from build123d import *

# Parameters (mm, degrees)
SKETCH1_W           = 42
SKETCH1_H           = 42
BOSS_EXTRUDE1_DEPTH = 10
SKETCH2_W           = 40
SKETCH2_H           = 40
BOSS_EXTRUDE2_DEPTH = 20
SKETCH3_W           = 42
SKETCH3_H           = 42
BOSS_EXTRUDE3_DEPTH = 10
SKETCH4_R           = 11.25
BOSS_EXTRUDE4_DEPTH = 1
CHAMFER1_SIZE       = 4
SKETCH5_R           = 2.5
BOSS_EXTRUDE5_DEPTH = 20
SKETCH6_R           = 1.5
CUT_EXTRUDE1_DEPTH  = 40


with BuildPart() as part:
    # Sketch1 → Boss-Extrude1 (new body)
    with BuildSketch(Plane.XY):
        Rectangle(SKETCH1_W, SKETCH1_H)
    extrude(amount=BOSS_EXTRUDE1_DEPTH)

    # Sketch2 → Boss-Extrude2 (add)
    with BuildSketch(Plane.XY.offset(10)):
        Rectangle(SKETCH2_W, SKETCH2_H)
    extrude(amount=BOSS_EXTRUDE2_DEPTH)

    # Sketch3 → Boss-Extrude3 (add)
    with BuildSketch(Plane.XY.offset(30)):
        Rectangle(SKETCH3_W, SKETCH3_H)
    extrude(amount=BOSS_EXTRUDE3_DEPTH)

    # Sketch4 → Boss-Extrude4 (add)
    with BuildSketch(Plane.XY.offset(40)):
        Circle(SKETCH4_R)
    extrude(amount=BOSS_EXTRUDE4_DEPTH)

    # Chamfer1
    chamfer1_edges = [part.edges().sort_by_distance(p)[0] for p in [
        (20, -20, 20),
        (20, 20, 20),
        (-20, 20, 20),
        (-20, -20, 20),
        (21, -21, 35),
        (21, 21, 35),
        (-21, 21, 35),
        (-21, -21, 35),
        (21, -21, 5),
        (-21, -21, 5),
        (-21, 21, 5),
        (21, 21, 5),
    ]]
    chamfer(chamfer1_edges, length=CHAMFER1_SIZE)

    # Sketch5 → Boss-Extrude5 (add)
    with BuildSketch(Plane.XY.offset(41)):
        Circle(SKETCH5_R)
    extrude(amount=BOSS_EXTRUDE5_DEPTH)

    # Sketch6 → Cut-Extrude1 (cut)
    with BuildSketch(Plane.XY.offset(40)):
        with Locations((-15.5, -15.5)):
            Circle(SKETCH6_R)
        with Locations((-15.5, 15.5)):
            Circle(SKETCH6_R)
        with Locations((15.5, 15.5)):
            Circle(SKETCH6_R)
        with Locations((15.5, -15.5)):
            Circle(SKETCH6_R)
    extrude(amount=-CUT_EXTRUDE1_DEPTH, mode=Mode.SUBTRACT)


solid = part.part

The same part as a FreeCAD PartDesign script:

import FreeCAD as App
import Part
import Sketcher
from FreeCAD import Vector
Q = App.Units.Quantity


def edges_at(feature, points):
    """Names of the edges that pass closest to the given points."""
    edges = feature.Shape.Edges
    near = lambda p: min(range(len(edges)), key=lambda i: edges[i].distToShape(Part.Vertex(*p))[0])
    return sorted({f"Edge{near(p) + 1}" for p in points})


def add_polygon(sketch, points):
    """Adds a closed chain of lines whose ends are joined by coincident constraints."""
    first, n = sketch.GeometryCount, len(points)
    for a, b in zip(points, points[1:] + points[:1]):
        sketch.addGeometry(Part.LineSegment(App.Vector(*a, 0), App.Vector(*b, 0)), False)
    for i in range(n):
        sketch.addConstraint(Sketcher.Constraint("Coincident", first + i, 2, first + (i + 1) % n, 1))

doc = App.newDocument("Part")
body = doc.addObject("PartDesign::Body", "Body")

sketch1 = body.newObject("Sketcher::SketchObject", "Sketch")
sketch1.AttachmentSupport = (doc.getObject("XY_Plane"), [""])
sketch1.MapMode = "FlatFace"
add_polygon(sketch1, [(-21, 21), (-21, -21), (21, -21), (21, 21)])
sketch1.addConstraint(Sketcher.Constraint("Vertical", 0))
sketch1.addConstraint(Sketcher.Constraint("Horizontal", 1))
sketch1.addConstraint(Sketcher.Constraint("Vertical", 2))
sketch1.addConstraint(Sketcher.Constraint("Horizontal", 3))
sketch1.addConstraint(Sketcher.Constraint("Symmetric", 0, 2, 2, 2, -1, 1))
sketch1.addConstraint(Sketcher.Constraint("Equal", 3, 0))
sketch1.addConstraint(Sketcher.Constraint("DistanceX", 1, 1, 1, 2, Q("42 mm")))
pad1 = body.newObject("PartDesign::Pad", "Pad")
pad1.Profile = sketch1
pad1.Length = 10

sketch2 = body.newObject("Sketcher::SketchObject", "Sketch001")
sketch2.AttachmentSupport = (doc.getObject("XY_Plane"), [""])
sketch2.MapMode = "FlatFace"
sketch2.AttachmentOffset = App.Placement(Vector(0, 0, 10), App.Rotation())
add_polygon(sketch2, [(-20, 20), (-20, -20), (20, -20), (20, 20)])
sketch2.addConstraint(Sketcher.Constraint("Vertical", 0))
sketch2.addConstraint(Sketcher.Constraint("Horizontal", 1))
sketch2.addConstraint(Sketcher.Constraint("Vertical", 2))
sketch2.addConstraint(Sketcher.Constraint("Horizontal", 3))
sketch2.addConstraint(Sketcher.Constraint("Symmetric", 0, 2, 2, 2, -1, 1))
sketch2.addConstraint(Sketcher.Constraint("Equal", 3, 0))
sketch2.addConstraint(Sketcher.Constraint("DistanceX", 1, 1, 1, 2, Q("40 mm")))
pad2 = body.newObject("PartDesign::Pad", "Pad001")
pad2.Profile = sketch2
pad2.Length = 20

sketch3 = body.newObject("Sketcher::SketchObject", "Sketch002")
sketch3.AttachmentSupport = (doc.getObject("XY_Plane"), [""])
sketch3.MapMode = "FlatFace"
sketch3.AttachmentOffset = App.Placement(Vector(0, 0, 30), App.Rotation())
add_polygon(sketch3, [(-21, 21), (-21, -21), (21, -21), (21, 21)])
sketch3.addConstraint(Sketcher.Constraint("Vertical", 0))
sketch3.addConstraint(Sketcher.Constraint("Horizontal", 1))
sketch3.addConstraint(Sketcher.Constraint("Vertical", 2))
sketch3.addConstraint(Sketcher.Constraint("Horizontal", 3))
sketch3.addConstraint(Sketcher.Constraint("Symmetric", 0, 2, 2, 2, -1, 1))
sketch3.addConstraint(Sketcher.Constraint("Equal", 3, 0))
sketch3.addConstraint(Sketcher.Constraint("DistanceX", 1, 1, 1, 2, Q("42 mm")))
pad3 = body.newObject("PartDesign::Pad", "Pad002")
pad3.Profile = sketch3
pad3.Length = 10

sketch4 = body.newObject("Sketcher::SketchObject", "Sketch003")
sketch4.AttachmentSupport = (doc.getObject("XY_Plane"), [""])
sketch4.MapMode = "FlatFace"
sketch4.AttachmentOffset = App.Placement(Vector(0, 0, 40), App.Rotation())
sketch4.addGeometry(Part.Circle(Vector(0, 0, 0), Vector(0, 0, 1), 11.25), False)
sketch4.addConstraint(Sketcher.Constraint("Coincident", 0, 3, -1, 1))
sketch4.addConstraint(Sketcher.Constraint("Diameter", 0, Q("22.5 mm")))
pad4 = body.newObject("PartDesign::Pad", "Pad003")
pad4.Profile = sketch4
pad4.Length = 1
doc.recompute()

chamfer = body.newObject("PartDesign::Chamfer", "Chamfer")
chamfer.Base = (pad4, edges_at(pad4, [
    (20, -20, 20),
    (20, 20, 20),
    (-20, 20, 20),
    (-20, -20, 20),
    (21, -21, 35),
    (21, 21, 35),
    (-21, 21, 35),
    (-21, -21, 35),
    (21, -21, 5),
    (-21, -21, 5),
    (-21, 21, 5),
    (21, 21, 5),
]))
chamfer.Size = 4

sketch5 = body.newObject("Sketcher::SketchObject", "Sketch004")
sketch5.AttachmentSupport = (doc.getObject("XY_Plane"), [""])
sketch5.MapMode = "FlatFace"
sketch5.AttachmentOffset = App.Placement(Vector(0, 0, 41), App.Rotation())
sketch5.addGeometry(Part.Circle(Vector(0, 0, 0), Vector(0, 0, 1), 2.5), False)
sketch5.addConstraint(Sketcher.Constraint("Coincident", 0, 3, -1, 1))
sketch5.addConstraint(Sketcher.Constraint("Diameter", 0, Q("5 mm")))
pad5 = body.newObject("PartDesign::Pad", "Pad004")
pad5.Profile = sketch5
pad5.Length = 20

sketch6 = body.newObject("Sketcher::SketchObject", "Sketch005")
sketch6.AttachmentSupport = (doc.getObject("XY_Plane"), [""])
sketch6.MapMode = "FlatFace"
sketch6.AttachmentOffset = App.Placement(Vector(0, 0, 40), App.Rotation())
sketch6.addGeometry(Part.Circle(Vector(-15.5, -15.5, 0), Vector(0, 0, 1), 1.5), False)
sketch6.addGeometry(Part.Circle(Vector(-15.5, 15.5, 0), Vector(0, 0, 1), 1.5), False)
sketch6.addGeometry(Part.Circle(Vector(15.5, 15.5, 0), Vector(0, 0, 1), 1.5), False)
sketch6.addGeometry(Part.Circle(Vector(15.5, -15.5, 0), Vector(0, 0, 1), 1.5), False)
sketch6.addConstraint(Sketcher.Constraint("Equal", 0, 1))
sketch6.addConstraint(Sketcher.Constraint("Equal", 1, 2))
sketch6.addConstraint(Sketcher.Constraint("Equal", 2, 3))
sketch6.addConstraint(Sketcher.Constraint("Symmetric", 0, 3, 2, 3, -1, 1))
sketch6.addConstraint(Sketcher.Constraint("Symmetric", 1, 3, 3, 3, -1, 1))
sketch6.addConstraint(Sketcher.Constraint("Symmetric", 1, 3, 2, 3, -2))
sketch6.addConstraint(Sketcher.Constraint("Diameter", 0, Q("3 mm")))
sketch6.addConstraint(Sketcher.Constraint("DistanceY", 0, 3, 1, 3, Q("31 mm")))
sketch6.addConstraint(Sketcher.Constraint("DistanceX", 1, 3, 2, 3, Q("31 mm")))
pocket1 = body.newObject("PartDesign::Pocket", "Pocket")
pocket1.Profile = sketch6
pocket1.Length = 40

doc.recompute()
